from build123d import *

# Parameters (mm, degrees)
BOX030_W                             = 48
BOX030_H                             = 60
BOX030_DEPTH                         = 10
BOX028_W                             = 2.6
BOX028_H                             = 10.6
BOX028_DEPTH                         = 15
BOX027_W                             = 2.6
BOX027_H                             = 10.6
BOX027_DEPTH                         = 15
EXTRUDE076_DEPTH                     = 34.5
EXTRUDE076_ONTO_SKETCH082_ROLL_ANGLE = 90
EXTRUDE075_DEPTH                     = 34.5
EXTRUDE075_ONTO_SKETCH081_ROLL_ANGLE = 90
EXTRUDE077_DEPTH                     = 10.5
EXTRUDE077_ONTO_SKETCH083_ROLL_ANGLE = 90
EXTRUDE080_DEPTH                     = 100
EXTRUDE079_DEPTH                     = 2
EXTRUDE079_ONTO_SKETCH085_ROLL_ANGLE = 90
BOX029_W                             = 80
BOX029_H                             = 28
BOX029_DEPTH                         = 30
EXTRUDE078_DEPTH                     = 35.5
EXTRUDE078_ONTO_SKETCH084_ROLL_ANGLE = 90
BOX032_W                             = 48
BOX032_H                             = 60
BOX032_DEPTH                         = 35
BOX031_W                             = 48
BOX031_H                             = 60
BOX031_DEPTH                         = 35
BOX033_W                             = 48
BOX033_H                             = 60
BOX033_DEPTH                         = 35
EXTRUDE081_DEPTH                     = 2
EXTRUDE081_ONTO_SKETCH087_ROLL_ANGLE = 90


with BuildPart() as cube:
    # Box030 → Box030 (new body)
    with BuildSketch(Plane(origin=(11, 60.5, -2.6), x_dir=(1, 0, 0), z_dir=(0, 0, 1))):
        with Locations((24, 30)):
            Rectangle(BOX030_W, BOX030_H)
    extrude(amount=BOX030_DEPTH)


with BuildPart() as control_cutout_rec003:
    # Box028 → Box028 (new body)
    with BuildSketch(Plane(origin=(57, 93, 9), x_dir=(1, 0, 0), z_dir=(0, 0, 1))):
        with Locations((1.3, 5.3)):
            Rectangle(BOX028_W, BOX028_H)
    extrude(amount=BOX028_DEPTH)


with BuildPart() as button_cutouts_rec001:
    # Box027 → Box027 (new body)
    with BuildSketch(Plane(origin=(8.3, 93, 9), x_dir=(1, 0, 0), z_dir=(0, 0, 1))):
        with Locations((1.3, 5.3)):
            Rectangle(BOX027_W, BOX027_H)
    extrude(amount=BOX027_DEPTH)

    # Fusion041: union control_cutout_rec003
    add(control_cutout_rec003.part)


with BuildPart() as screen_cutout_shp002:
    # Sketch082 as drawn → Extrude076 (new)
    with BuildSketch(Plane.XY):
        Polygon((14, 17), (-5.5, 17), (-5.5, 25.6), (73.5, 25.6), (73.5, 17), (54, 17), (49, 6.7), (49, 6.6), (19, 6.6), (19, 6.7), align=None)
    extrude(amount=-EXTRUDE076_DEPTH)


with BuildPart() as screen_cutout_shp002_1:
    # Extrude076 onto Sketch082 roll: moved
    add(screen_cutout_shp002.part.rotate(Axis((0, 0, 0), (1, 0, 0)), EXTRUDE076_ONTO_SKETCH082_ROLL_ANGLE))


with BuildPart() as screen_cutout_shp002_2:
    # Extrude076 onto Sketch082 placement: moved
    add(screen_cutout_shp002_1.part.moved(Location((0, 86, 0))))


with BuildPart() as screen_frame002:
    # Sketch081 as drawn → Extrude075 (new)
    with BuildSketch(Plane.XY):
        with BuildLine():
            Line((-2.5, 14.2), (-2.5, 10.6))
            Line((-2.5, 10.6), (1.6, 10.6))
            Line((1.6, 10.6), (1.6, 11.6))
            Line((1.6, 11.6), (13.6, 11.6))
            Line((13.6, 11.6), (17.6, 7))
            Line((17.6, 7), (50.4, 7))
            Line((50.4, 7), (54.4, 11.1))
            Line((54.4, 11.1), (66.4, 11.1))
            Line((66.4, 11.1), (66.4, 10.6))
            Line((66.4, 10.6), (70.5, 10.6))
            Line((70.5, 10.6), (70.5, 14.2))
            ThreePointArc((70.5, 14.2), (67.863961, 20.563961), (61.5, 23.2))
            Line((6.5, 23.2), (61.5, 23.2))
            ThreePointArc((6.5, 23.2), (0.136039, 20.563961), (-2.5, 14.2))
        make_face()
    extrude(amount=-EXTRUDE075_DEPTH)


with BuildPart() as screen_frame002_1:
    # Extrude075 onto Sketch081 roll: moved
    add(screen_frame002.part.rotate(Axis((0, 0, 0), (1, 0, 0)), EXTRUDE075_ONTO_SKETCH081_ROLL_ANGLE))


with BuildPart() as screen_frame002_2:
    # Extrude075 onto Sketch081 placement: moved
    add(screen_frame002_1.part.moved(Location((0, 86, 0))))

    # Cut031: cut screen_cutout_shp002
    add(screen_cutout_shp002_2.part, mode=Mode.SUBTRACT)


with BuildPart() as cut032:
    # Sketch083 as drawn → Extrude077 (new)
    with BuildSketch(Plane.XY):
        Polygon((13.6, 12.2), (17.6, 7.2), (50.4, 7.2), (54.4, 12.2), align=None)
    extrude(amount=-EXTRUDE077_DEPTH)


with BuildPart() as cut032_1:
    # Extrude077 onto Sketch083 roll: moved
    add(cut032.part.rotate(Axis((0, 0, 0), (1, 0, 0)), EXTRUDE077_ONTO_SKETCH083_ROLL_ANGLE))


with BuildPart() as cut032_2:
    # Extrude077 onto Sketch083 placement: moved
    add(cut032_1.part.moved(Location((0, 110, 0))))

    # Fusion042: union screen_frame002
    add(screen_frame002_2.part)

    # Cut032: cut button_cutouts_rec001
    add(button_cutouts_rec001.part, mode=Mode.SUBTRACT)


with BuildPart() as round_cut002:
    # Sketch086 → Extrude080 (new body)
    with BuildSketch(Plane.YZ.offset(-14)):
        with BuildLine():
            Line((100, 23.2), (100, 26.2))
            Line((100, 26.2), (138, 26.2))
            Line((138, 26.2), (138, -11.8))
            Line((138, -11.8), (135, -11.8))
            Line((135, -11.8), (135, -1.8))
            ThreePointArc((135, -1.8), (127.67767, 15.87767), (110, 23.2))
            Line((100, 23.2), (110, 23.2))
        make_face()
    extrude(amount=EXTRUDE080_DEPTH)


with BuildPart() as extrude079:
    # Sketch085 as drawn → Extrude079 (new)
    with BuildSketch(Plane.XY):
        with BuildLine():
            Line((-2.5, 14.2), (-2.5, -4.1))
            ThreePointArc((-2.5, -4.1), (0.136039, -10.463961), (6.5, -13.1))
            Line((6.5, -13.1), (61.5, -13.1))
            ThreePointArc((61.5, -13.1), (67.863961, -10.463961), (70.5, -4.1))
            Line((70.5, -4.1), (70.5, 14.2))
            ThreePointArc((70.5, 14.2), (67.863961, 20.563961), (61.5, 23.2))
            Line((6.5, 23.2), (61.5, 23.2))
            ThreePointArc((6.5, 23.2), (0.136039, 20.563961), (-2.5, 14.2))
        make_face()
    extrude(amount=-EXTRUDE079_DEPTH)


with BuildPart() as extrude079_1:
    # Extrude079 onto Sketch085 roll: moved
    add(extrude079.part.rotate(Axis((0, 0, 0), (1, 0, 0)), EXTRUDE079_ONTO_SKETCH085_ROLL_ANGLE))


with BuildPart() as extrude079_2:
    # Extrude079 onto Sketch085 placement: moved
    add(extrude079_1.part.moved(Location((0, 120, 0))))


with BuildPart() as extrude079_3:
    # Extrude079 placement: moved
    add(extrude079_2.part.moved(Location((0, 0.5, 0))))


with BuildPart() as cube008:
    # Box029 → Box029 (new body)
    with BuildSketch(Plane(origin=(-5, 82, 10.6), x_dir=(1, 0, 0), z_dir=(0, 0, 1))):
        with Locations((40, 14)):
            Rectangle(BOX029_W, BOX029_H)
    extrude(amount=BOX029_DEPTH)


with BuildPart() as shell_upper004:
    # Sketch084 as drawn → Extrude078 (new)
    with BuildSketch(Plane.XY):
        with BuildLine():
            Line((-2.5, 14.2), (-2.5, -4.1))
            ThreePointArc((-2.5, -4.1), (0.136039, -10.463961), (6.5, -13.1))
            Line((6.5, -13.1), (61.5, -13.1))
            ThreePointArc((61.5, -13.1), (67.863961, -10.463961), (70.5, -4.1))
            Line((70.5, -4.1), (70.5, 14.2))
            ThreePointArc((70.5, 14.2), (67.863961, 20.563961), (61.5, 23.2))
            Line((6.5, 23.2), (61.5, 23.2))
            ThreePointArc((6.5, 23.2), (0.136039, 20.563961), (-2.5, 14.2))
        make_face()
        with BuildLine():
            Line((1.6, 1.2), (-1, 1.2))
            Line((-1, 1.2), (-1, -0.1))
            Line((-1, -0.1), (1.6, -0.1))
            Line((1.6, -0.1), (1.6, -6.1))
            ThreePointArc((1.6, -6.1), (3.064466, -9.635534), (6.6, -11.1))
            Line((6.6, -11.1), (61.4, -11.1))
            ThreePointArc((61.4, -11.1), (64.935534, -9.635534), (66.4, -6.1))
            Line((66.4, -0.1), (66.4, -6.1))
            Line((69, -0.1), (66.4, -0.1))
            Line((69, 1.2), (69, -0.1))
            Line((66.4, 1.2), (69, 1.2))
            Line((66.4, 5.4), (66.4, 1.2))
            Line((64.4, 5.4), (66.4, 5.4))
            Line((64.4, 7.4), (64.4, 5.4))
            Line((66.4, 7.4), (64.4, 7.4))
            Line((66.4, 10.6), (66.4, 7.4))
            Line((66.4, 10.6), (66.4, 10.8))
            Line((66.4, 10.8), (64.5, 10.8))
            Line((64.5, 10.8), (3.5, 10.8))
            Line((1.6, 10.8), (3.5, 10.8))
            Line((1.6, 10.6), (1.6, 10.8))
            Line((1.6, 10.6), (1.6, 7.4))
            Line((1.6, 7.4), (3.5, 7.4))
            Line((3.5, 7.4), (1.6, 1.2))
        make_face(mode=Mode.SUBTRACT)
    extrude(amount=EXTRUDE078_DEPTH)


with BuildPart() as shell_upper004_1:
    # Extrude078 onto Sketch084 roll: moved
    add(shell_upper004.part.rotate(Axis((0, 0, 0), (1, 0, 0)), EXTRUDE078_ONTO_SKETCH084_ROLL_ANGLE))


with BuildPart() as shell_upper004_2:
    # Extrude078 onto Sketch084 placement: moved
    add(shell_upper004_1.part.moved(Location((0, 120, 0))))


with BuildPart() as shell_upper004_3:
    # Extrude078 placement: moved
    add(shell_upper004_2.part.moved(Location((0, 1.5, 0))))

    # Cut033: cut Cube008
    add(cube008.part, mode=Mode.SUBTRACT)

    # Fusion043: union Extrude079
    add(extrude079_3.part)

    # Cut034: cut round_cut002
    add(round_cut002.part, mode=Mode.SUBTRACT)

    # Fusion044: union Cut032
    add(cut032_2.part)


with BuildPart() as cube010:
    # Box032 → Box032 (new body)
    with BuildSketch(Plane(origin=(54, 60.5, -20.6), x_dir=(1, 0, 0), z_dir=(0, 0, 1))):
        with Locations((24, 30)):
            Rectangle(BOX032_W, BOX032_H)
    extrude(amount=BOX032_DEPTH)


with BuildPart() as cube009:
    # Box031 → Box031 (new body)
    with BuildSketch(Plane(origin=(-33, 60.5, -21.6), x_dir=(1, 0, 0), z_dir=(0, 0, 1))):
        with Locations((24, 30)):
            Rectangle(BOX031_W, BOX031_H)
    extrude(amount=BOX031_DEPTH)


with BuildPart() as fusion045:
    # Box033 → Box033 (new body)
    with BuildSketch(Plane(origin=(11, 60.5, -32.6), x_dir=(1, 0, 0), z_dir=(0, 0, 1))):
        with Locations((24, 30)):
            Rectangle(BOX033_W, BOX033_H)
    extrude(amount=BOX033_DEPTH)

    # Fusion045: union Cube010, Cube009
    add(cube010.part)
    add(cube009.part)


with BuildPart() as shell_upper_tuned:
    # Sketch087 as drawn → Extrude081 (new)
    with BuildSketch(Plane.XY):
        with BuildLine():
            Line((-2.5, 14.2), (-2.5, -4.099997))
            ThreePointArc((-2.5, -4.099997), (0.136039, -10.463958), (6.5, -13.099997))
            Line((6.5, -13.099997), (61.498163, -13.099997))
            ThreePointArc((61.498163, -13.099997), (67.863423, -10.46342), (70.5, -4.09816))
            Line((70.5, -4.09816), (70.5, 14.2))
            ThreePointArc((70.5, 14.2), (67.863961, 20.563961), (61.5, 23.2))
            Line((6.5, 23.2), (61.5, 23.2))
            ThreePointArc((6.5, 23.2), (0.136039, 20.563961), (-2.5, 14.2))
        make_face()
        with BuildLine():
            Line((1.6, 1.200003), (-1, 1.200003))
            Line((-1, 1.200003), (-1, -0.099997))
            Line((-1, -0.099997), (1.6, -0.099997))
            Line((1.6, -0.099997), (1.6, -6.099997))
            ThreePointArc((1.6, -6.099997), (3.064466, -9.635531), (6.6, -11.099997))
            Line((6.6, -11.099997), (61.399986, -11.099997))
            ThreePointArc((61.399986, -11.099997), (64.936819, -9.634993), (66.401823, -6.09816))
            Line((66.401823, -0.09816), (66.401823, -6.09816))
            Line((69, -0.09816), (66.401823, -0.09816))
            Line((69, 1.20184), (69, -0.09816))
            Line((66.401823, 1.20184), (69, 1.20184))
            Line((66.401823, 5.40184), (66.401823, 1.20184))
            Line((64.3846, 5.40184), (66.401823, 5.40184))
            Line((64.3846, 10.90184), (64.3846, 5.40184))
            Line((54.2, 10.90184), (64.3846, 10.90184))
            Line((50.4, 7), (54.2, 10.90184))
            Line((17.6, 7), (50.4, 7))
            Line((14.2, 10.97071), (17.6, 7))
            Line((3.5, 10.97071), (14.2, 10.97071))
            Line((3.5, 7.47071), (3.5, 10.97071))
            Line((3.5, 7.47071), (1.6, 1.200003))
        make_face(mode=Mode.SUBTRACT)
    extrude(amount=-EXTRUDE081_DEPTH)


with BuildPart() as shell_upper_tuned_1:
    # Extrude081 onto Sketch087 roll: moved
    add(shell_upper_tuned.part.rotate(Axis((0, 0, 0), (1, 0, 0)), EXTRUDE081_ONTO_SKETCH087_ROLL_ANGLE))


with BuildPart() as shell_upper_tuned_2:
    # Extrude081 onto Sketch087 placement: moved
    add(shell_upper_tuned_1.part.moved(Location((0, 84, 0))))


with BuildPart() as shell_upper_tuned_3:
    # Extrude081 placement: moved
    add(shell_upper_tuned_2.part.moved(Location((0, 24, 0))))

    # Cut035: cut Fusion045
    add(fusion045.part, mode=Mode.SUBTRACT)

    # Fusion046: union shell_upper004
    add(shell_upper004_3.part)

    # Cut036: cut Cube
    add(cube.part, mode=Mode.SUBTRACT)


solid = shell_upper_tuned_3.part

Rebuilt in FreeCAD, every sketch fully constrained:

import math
import FreeCAD as App
import Part
import Sketcher
from FreeCAD import Vector
Q = App.Units.Quantity


def add_polygon(sketch, points):
    """Adds a closed chain of lines whose ends are joined by coincident constraints."""
    first, n = sketch.GeometryCount, len(points)
    for a, b in zip(points, points[1:] + points[:1]):
        sketch.addGeometry(Part.LineSegment(App.Vector(*a, 0), App.Vector(*b, 0)), False)
    for i in range(n):
        sketch.addConstraint(Sketcher.Constraint("Coincident", first + i, 2, first + (i + 1) % n, 1))

doc = App.newDocument("Part")
body = doc.addObject("PartDesign::Body", "Body")

sketch1 = body.newObject("Sketcher::SketchObject", "Sketch")
sketch1.AttachmentSupport = (doc.getObject("XY_Plane"), [""])
sketch1.MapMode = "FlatFace"
sketch1.AttachmentOffset = App.Placement(Vector(0, 0, -2.6), App.Rotation())
add_polygon(sketch1, [(11, 120.5), (11, 60.5), (59, 60.5), (59, 120.5)])
sketch1.addConstraint([
    Sketcher.Constraint("Vertical", 0),
    Sketcher.Constraint("Horizontal", 1),
    Sketcher.Constraint("Vertical", 2),
    Sketcher.Constraint("Horizontal", 3),
    Sketcher.Constraint("DistanceX", 1, 1, 1, 2, Q("48 mm")),
    Sketcher.Constraint("DistanceY", 0, 2, 0, 1, Q("60 mm")),
    Sketcher.Constraint("DistanceX", -1, 1, 0, 2, Q("11 mm")),
    Sketcher.Constraint("DistanceY", -1, 1, 0, 2, Q("60.5 mm")),
])
pad1 = body.newObject("PartDesign::Pad", "Pad")
pad1.Profile = sketch1
pad1.Length = 10
body2 = doc.addObject("PartDesign::Body", "Body001")

sketch2 = body2.newObject("Sketcher::SketchObject", "Sketch001")
sketch2.AttachmentSupport = (doc.getObject("XY_Plane001"), [""])
sketch2.MapMode = "FlatFace"
sketch2.AttachmentOffset = App.Placement(Vector(0, 0, 9), App.Rotation())
add_polygon(sketch2, [(57, 103.6), (57, 93), (59.6, 93), (59.6, 103.6)])
sketch2.addConstraint([
    Sketcher.Constraint("Vertical", 0),
    Sketcher.Constraint("Horizontal", 1),
    Sketcher.Constraint("Vertical", 2),
    Sketcher.Constraint("Horizontal", 3),
    Sketcher.Constraint("DistanceX", 1, 1, 1, 2, Q("2.6 mm")),
    Sketcher.Constraint("DistanceY", 0, 2, 0, 1, Q("10.6 mm")),
    Sketcher.Constraint("DistanceX", -1, 1, 0, 2, Q("57 mm")),
    Sketcher.Constraint("DistanceY", -1, 1, 0, 2, Q("93 mm")),
])
pad2 = body2.newObject("PartDesign::Pad", "Pad001")
pad2.Profile = sketch2
pad2.Length = 15
body3 = doc.addObject("PartDesign::Body", "Body002")
body3.AllowCompound = True

sketch3 = body3.newObject("Sketcher::SketchObject", "Sketch002")
sketch3.AttachmentSupport = (doc.getObject("XY_Plane002"), [""])
sketch3.MapMode = "FlatFace"
sketch3.AttachmentOffset = App.Placement(Vector(0, 0, 9), App.Rotation())
add_polygon(sketch3, [(8.3, 103.6), (8.3, 93), (10.9, 93), (10.9, 103.6)])
sketch3.addConstraint([
    Sketcher.Constraint("Vertical", 0),
    Sketcher.Constraint("Horizontal", 1),
    Sketcher.Constraint("Vertical", 2),
    Sketcher.Constraint("Horizontal", 3),
    Sketcher.Constraint("DistanceX", 1, 1, 1, 2, Q("2.6 mm")),
    Sketcher.Constraint("DistanceY", 0, 2, 0, 1, Q("10.6 mm")),
    Sketcher.Constraint("DistanceY", -1, 1, 0, 2, Q("93 mm")),
    Sketcher.Constraint("DistanceX", -1, 1, 0, 2, Q("8.3 mm")),
])
pad3 = body3.newObject("PartDesign::Pad", "Pad002")
pad3.Profile = sketch3
pad3.Length = 15
doc.recompute()

boolean = body3.newObject("PartDesign::Boolean", "Boolean")
boolean.Type = "Fuse"
boolean.addObjects([body2])
body4 = doc.addObject("PartDesign::Body", "Body003")

sketch4 = body4.newObject("Sketcher::SketchObject", "Sketch003")
sketch4.AttachmentSupport = (doc.getObject("XY_Plane003"), [""])
sketch4.MapMode = "FlatFace"
add_polygon(sketch4, [(-5.5, 17), (14, 17), (19, 6.7), (19, 6.6), (49, 6.6), (49, 6.7), (54, 17), (73.5, 17), (73.5, 25.6), (-5.5, 25.6)])
sketch4.addConstraint([
    Sketcher.Constraint("Horizontal", 0),
    Sketcher.Constraint("Vertical", 2),
    Sketcher.Constraint("Horizontal", 3),
    Sketcher.Constraint("Vertical", 4),
    Sketcher.Constraint("Horizontal", 6),
    Sketcher.Constraint("Vertical", 7),
    Sketcher.Constraint("Horizontal", 8),
    Sketcher.Constraint("Vertical", 9),
    Sketcher.Constraint("Horizontal", 1, 2, 4, 2),
    Sketcher.Constraint("Horizontal", 0, 2, 5, 2),
    Sketcher.Constraint("Equal", 0, 6),
    Sketcher.Constraint("Equal", 1, 5),
    Sketcher.Constraint("DistanceX", 3, 1, 3, 2, Q("30 mm")),
    Sketcher.Constraint("DistanceX", 8, 2, 8, 1, Q("79 mm")),
    Sketcher.Constraint("DistanceX", 0, 1, 0, 2, Q("19.5 mm")),
    Sketcher.Constraint("DistanceY", 2, 2, 2, 1, Q("0.1 mm")),
    Sketcher.Constraint("DistanceY", 7, 1, 7, 2, Q("8.6 mm")),
    Sketcher.Constraint("DistanceX", -1, 1, 0, 2, Q("14 mm")),
    Sketcher.Constraint("DistanceY", -1, 1, 0, 2, Q("17 mm")),
    Sketcher.Constraint("DistanceY", 3, 2, 7, 2, Q("19 mm")),
])
pad4 = body4.newObject("PartDesign::Pad", "Pad003")
pad4.Profile = sketch4
pad4.Length = 34.5
pad4.Reversed = True
body5 = doc.addObject("PartDesign::Body", "Body004")
doc.recompute()

body4.Placement = App.Placement(Vector(0, 0, 0), App.Rotation(Vector(1, 0, 0), 90))
boolean2 = body5.newObject("PartDesign::Boolean", "Boolean001")
boolean2.Type = "Fuse"
boolean2.addObjects([body4])
body6 = doc.addObject("PartDesign::Body", "Body005")
doc.recompute()

body5.Placement = App.Placement(Vector(0, 86, 0), App.Rotation(Vector(0, 0, 1), 0))
boolean3 = body6.newObject("PartDesign::Boolean", "Boolean002")
boolean3.Type = "Fuse"
boolean3.addObjects([body5])
body7 = doc.addObject("PartDesign::Body", "Body006")

sketch5 = body7.newObject("Sketcher::SketchObject", "Sketch004")
sketch5.AttachmentSupport = (doc.getObject("XY_Plane006"), [""])
sketch5.MapMode = "FlatFace"
sketch5.addGeometry([
    Part.LineSegment(Vector(-2.5, 14.2, 0), Vector(-2.5, 10.6, 0)),
    Part.LineSegment(Vector(-2.5, 10.6, 0), Vector(1.6, 10.6, 0)),
    Part.LineSegment(Vector(1.6, 10.6, 0), Vector(1.6, 11.6, 0)),
    Part.LineSegment(Vector(1.6, 11.6, 0), Vector(13.6, 11.6, 0)),
    Part.LineSegment(Vector(13.6, 11.6, 0), Vector(17.6, 7, 0)),
    Part.LineSegment(Vector(17.6, 7, 0), Vector(50.4, 7, 0)),
    Part.LineSegment(Vector(50.4, 7, 0), Vector(54.4, 11.1, 0)),
    Part.LineSegment(Vector(54.4, 11.1, 0), Vector(66.4, 11.1, 0)),
    Part.LineSegment(Vector(66.4, 11.1, 0), Vector(66.4, 10.6, 0)),
    Part.LineSegment(Vector(66.4, 10.6, 0), Vector(70.5, 10.6, 0)),
    Part.LineSegment(Vector(70.5, 10.6, 0), Vector(70.5, 14.2, 0)),
    Part.ArcOfCircle(Part.Circle(Vector(61.5, 14.2, 0), Vector(0, 0, 1), 9), math.radians(0.000001), math.radians(89.999999)),
    Part.LineSegment(Vector(61.5, 23.2, 0), Vector(6.5, 23.2, 0)),
    Part.ArcOfCircle(Part.Circle(Vector(6.5, 14.2, 0), Vector(0, 0, 1), 9), math.radians(90.000001), math.radians(179.999999)),
], False)
sketch5.addConstraint([
    Sketcher.Constraint("Coincident", 0, 2, 1, 1),
    Sketcher.Constraint("Coincident", 1, 2, 2, 1),
    Sketcher.Constraint("Coincident", 2, 2, 3, 1),
    Sketcher.Constraint("Coincident", 3, 2, 4, 1),
    Sketcher.Constraint("Coincident", 4, 2, 5, 1),
    Sketcher.Constraint("Coincident", 5, 2, 6, 1),
    Sketcher.Constraint("Coincident", 6, 2, 7, 1),
    Sketcher.Constraint("Coincident", 7, 2, 8, 1),
    Sketcher.Constraint("Coincident", 8, 2, 9, 1),
    Sketcher.Constraint("Coincident", 9, 2, 10, 1),
    Sketcher.Constraint("Tangent", 10, 2, 11, 1),
    Sketcher.Constraint("Tangent", 11, 2, 12, 1),
    Sketcher.Constraint("Tangent", 12, 2, 13, 1),
    Sketcher.Constraint("Tangent", 13, 2, 0, 1),
    Sketcher.Constraint("Vertical", 0),
    Sketcher.Constraint("Horizontal", 1),
    Sketcher.Constraint("Vertical", 2),
    Sketcher.Constraint("Horizontal", 3),
    Sketcher.Constraint("Horizontal", 5),
    Sketcher.Constraint("Horizontal", 7),
    Sketcher.Constraint("Vertical", 8),
    Sketcher.Constraint("Horizontal", 9),
    Sketcher.Constraint("Vertical", 10),
    Sketcher.Constraint("Horizontal", 12),
    Sketcher.Constraint("Equal", 11, 13),
    Sketcher.Constraint("Horizontal", 1, 2, 8, 2),
    Sketcher.Constraint("Equal", 3, 7),
    Sketcher.Constraint("Equal", 1, 9),
    Sketcher.Constraint("Radius", 11, Q("9 mm")),
    Sketcher.Constraint("DistanceX", 3, 1, 3, 2, Q("12 mm")),
    Sketcher.Constraint("DistanceX", 12, 2, 12, 1, Q("55 mm")),
    Sketcher.Constraint("DistanceY", 2, 1, 2, 2, Q("1 mm")),
    Sketcher.Constraint("DistanceX", 1, 1, 1, 2, Q("4.1 mm")),
    Sketcher.Constraint("DistanceX", 5, 1, 5, 2, Q("32.8 mm")),
    Sketcher.Constraint("DistanceY", 0, 2, 0, 1, Q("3.6 mm")),
    Sketcher.Constraint("DistanceY", 8, 2, 8, 1, Q("0.5 mm")),
    Sketcher.Constraint("DistanceY", -1, 1, 4, 2, Q("7 mm")),
    Sketcher.Constraint("DistanceX", 3, 2, 4, 2, Q("4 mm")),
    Sketcher.Constraint("DistanceX", -1, 1, 11, 3, Q("61.5 mm")),
    Sketcher.Constraint("DistanceY", -1, 1, 11, 3, Q("14.2 mm")),
])
pad5 = body7.newObject("PartDesign::Pad", "Pad004")
pad5.Profile = sketch5
pad5.Length = 34.5
pad5.Reversed = True
body8 = doc.addObject("PartDesign::Body", "Body007")
doc.recompute()

body7.Placement = App.Placement(Vector(0, 0, 0), App.Rotation(Vector(1, 0, 0), 90))
boolean4 = body8.newObject("PartDesign::Boolean", "Boolean003")
boolean4.Type = "Fuse"
boolean4.addObjects([body7])
body9 = doc.addObject("PartDesign::Body", "Body008")
body9.AllowCompound = True
doc.recompute()

body8.Placement = App.Placement(Vector(0, 86, 0), App.Rotation(Vector(0, 0, 1), 0))
boolean5 = body9.newObject("PartDesign::Boolean", "Boolean004")
boolean5.Type = "Fuse"
boolean5.addObjects([body8])
doc.recompute()

boolean6 = body9.newObject("PartDesign::Boolean", "Boolean005")
boolean6.Type = "Cut"
boolean6.addObjects([body6])
body10 = doc.addObject("PartDesign::Body", "Body009")

sketch6 = body10.newObject("Sketcher::SketchObject", "Sketch005")
sketch6.AttachmentSupport = (doc.getObject("XY_Plane009"), [""])
sketch6.MapMode = "FlatFace"
add_polygon(sketch6, [(13.6, 12.2), (17.6, 7.2), (50.4, 7.2), (54.4, 12.2)])
sketch6.addConstraint([
    Sketcher.Constraint("Horizontal", 1),
    Sketcher.Constraint("Horizontal", 3),
    Sketcher.Constraint("Equal", 0, 2),
    Sketcher.Constraint("DistanceX", 1, 1, 1, 2, Q("32.8 mm")),
    Sketcher.Constraint("DistanceX", 3, 2, 3, 1, Q("40.8 mm")),
    Sketcher.Constraint("DistanceY", 1, 2, 2, 2, Q("5 mm")),
    Sketcher.Constraint("DistanceX", -1, 1, 0, 2, Q("17.6 mm")),
    Sketcher.Constraint("DistanceY", -1, 1, 0, 2, Q("7.2 mm")),
])
pad6 = body10.newObject("PartDesign::Pad", "Pad005")
pad6.Profile = sketch6
pad6.Length = 10.5
pad6.Reversed = True
body11 = doc.addObject("PartDesign::Body", "Body010")
doc.recompute()

body10.Placement = App.Placement(Vector(0, 0, 0), App.Rotation(Vector(1, 0, 0), 90))
boolean7 = body11.newObject("PartDesign::Boolean", "Boolean006")
boolean7.Type = "Fuse"
boolean7.addObjects([body10])
body12 = doc.addObject("PartDesign::Body", "Body011")
doc.recompute()

body11.Placement = App.Placement(Vector(0, 110, 0), App.Rotation(Vector(0, 0, 1), 0))
boolean8 = body12.newObject("PartDesign::Boolean", "Boolean007")
boolean8.Type = "Fuse"
boolean8.addObjects([body11])
doc.recompute()

boolean9 = body12.newObject("PartDesign::Boolean", "Boolean008")
boolean9.Type = "Fuse"
boolean9.addObjects([body9])
doc.recompute()

boolean10 = body12.newObject("PartDesign::Boolean", "Boolean009")
boolean10.Type = "Cut"
boolean10.addObjects([body3])
body13 = doc.addObject("PartDesign::Body", "Body012")

sketch7 = body13.newObject("Sketcher::SketchObject", "Sketch006")
sketch7.AttachmentSupport = (doc.getObject("YZ_Plane012"), [""])
sketch7.MapMode = "FlatFace"
sketch7.AttachmentOffset = App.Placement(Vector(0, 0, -14), App.Rotation())
sketch7.addGeometry([
    Part.LineSegment(Vector(100, 26.2, 0), Vector(100, 23.2, 0)),
    Part.LineSegment(Vector(100, 23.2, 0), Vector(110, 23.2, 0)),
    Part.ArcOfCircle(Part.Circle(Vector(110.000002, -1.799998, 0), Vector(0, 0, 1), 24.999998), math.radians(-0.000004), math.radians(90.000004)),
    Part.LineSegment(Vector(135, -1.8, 0), Vector(135, -11.8, 0)),
    Part.LineSegment(Vector(135, -11.8, 0), Vector(138, -11.8, 0)),
    Part.LineSegment(Vector(138, -11.8, 0), Vector(138, 26.2, 0)),
    Part.LineSegment(Vector(138, 26.2, 0), Vector(100, 26.2, 0)),
], False)
sketch7.addConstraint([
    Sketcher.Constraint("Coincident", 0, 2, 1, 1),
    Sketcher.Constraint("Tangent", 1, 2, 2, 2),
    Sketcher.Constraint("Tangent", 2, 1, 3, 1),
    Sketcher.Constraint("Coincident", 3, 2, 4, 1),
    Sketcher.Constraint("Coincident", 4, 2, 5, 1),
    Sketcher.Constraint("Coincident", 5, 2, 6, 1),
    Sketcher.Constraint("Coincident", 6, 2, 0, 1),
    Sketcher.Constraint("Vertical", 0),
    Sketcher.Constraint("Horizontal", 1),
    Sketcher.Constraint("Vertical", 3),
    Sketcher.Constraint("Horizontal", 4),
    Sketcher.Constraint("Vertical", 5),
    Sketcher.Constraint("Horizontal", 6),
    Sketcher.Constraint("Equal", 4, 0),
    Sketcher.Constraint("Equal", 1, 3),
    Sketcher.Constraint("Radius", 2, Q("24.999998 mm")),
    Sketcher.Constraint("DistanceX", 1, 1, 1, 2, Q("10 mm")),
    Sketcher.Constraint("DistanceX", 4, 1, 4, 2, Q("3 mm")),
    Sketcher.Constraint("DistanceX", -1, 1, 2, 3, Q("110.000002 mm")),
    Sketcher.Constraint("DistanceY", 2, 3, -1, 1, Q("1.799998 mm")),
])
pad7 = body13.newObject("PartDesign::Pad", "Pad006")
pad7.Profile = sketch7
pad7.Length = 100
body14 = doc.addObject("PartDesign::Body", "Body013")

sketch8 = body14.newObject("Sketcher::SketchObject", "Sketch007")
sketch8.AttachmentSupport = (doc.getObject("XY_Plane013"), [""])
sketch8.MapMode = "FlatFace"
sketch8.addGeometry([
    Part.LineSegment(Vector(-2.5, 14.2, 0), Vector(-2.5, -4.1, 0)),
    Part.ArcOfCircle(Part.Circle(Vector(6.5, -4.1, 0), Vector(0, 0, 1), 9), math.radians(-179.999999), math.radians(-90.000001)),
    Part.LineSegment(Vector(6.5, -13.1, 0), Vector(61.5, -13.1, 0)),
    Part.ArcOfCircle(Part.Circle(Vector(61.5, -4.1, 0), Vector(0, 0, 1), 9), math.radians(-89.999999), math.radians(-0.000001)),
    Part.LineSegment(Vector(70.5, -4.1, 0), Vector(70.5, 14.2, 0)),
    Part.ArcOfCircle(Part.Circle(Vector(61.5, 14.2, 0), Vector(0, 0, 1), 9), math.radians(0.000001), math.radians(89.999999)),
    Part.LineSegment(Vector(61.5, 23.2, 0), Vector(6.5, 23.2, 0)),
    Part.ArcOfCircle(Part.Circle(Vector(6.5, 14.2, 0), Vector(0, 0, 1), 9), math.radians(90.000001), math.radians(179.999999)),
], False)
sketch8.addConstraint([
    Sketcher.Constraint("Tangent", 0, 2, 1, 1),
    Sketcher.Constraint("Tangent", 1, 2, 2, 1),
    Sketcher.Constraint("Tangent", 2, 2, 3, 1),
    Sketcher.Constraint("Tangent", 3, 2, 4, 1),
    Sketcher.Constraint("Tangent", 4, 2, 5, 1),
    Sketcher.Constraint("Tangent", 5, 2, 6, 1),
    Sketcher.Constraint("Tangent", 6, 2, 7, 1),
    Sketcher.Constraint("Tangent", 7, 2, 0, 1),
    Sketcher.Constraint("Vertical", 0),
    Sketcher.Constraint("Horizontal", 2),
    Sketcher.Constraint("Vertical", 4),
    Sketcher.Constraint("Horizontal", 6),
    Sketcher.Constraint("Equal", 1, 3),
    Sketcher.Constraint("Equal", 3, 5),
    Sketcher.Constraint("Equal", 5, 7),
    Sketcher.Constraint("Radius", 1, Q("9 mm")),
    Sketcher.Constraint("DistanceX", 2, 1, 2, 2, Q("55 mm")),
    Sketcher.Constraint("DistanceY", 0, 2, 0, 1, Q("18.3 mm")),
    Sketcher.Constraint("DistanceX", -1, 1, 1, 3, Q("6.5 mm")),
    Sketcher.Constraint("DistanceY", 1, 3, -1, 1, Q("4.1 mm")),
])
pad8 = body14.newObject("PartDesign::Pad", "Pad007")
pad8.Profile = sketch8
pad8.Length = 2
pad8.Reversed = True
body15 = doc.addObject("PartDesign::Body", "Body014")
doc.recompute()

body14.Placement = App.Placement(Vector(0, 0, 0), App.Rotation(Vector(1, 0, 0), 90))
boolean11 = body15.newObject("PartDesign::Boolean", "Boolean010")
boolean11.Type = "Fuse"
boolean11.addObjects([body14])
body16 = doc.addObject("PartDesign::Body", "Body015")
doc.recompute()

body15.Placement = App.Placement(Vector(0, 120, 0), App.Rotation(Vector(0, 0, 1), 0))
boolean12 = body16.newObject("PartDesign::Boolean", "Boolean011")
boolean12.Type = "Fuse"
boolean12.addObjects([body15])
body17 = doc.addObject("PartDesign::Body", "Body016")
doc.recompute()

body16.Placement = App.Placement(Vector(0, 0.5, 0), App.Rotation(Vector(0, 0, 1), 0))
boolean13 = body17.newObject("PartDesign::Boolean", "Boolean012")
boolean13.Type = "Fuse"
boolean13.addObjects([body16])
body18 = doc.addObject("PartDesign::Body", "Body017")

sketch9 = body18.newObject("Sketcher::SketchObject", "Sketch008")
sketch9.AttachmentSupport = (doc.getObject("XY_Plane017"), [""])
sketch9.MapMode = "FlatFace"
sketch9.AttachmentOffset = App.Placement(Vector(0, 0, 10.6), App.Rotation())
add_polygon(sketch9, [(-5, 110), (-5, 82), (75, 82), (75, 110)])
sketch9.addConstraint([
    Sketcher.Constraint("Vertical", 0),
    Sketcher.Constraint("Horizontal", 1),
    Sketcher.Constraint("Vertical", 2),
    Sketcher.Constraint("Horizontal", 3),
    Sketcher.Constraint("DistanceX", 1, 1, 1, 2, Q("80 mm")),
    Sketcher.Constraint("DistanceY", 0, 2, 0, 1, Q("28 mm")),
    Sketcher.Constraint("DistanceX", 0, 2, -1, 1, Q("5 mm")),
    Sketcher.Constraint("DistanceY", -1, 1, 0, 2, Q("82 mm")),
])
pad9 = body18.newObject("PartDesign::Pad", "Pad008")
pad9.Profile = sketch9
pad9.Length = 30
body19 = doc.addObject("PartDesign::Body", "Body018")

sketch10 = body19.newObject("Sketcher::SketchObject", "Sketch009")
sketch10.AttachmentSupport = (doc.getObject("XY_Plane018"), [""])
sketch10.MapMode = "FlatFace"
sketch10.addGeometry([
    Part.LineSegment(Vector(-2.5, 14.2, 0), Vector(-2.5, -4.1, 0)),
    Part.ArcOfCircle(Part.Circle(Vector(6.5, -4.1, 0), Vector(0, 0, 1), 9), math.radians(-179.999999), math.radians(-90.000001)),
    Part.LineSegment(Vector(6.5, -13.1, 0), Vector(61.5, -13.1, 0)),
    Part.ArcOfCircle(Part.Circle(Vector(61.5, -4.1, 0), Vector(0, 0, 1), 9), math.radians(-89.999999), math.radians(-0.000001)),
    Part.LineSegment(Vector(70.5, -4.1, 0), Vector(70.5, 14.2, 0)),
    Part.ArcOfCircle(Part.Circle(Vector(61.5, 14.2, 0), Vector(0, 0, 1), 9), math.radians(0.000001), math.radians(89.999999)),
    Part.LineSegment(Vector(61.5, 23.2, 0), Vector(6.5, 23.2, 0)),
    Part.ArcOfCircle(Part.Circle(Vector(6.5, 14.2, 0), Vector(0, 0, 1), 9), math.radians(90.000001), math.radians(179.999999)),
    Part.LineSegment(Vector(-1, 1.2, 0), Vector(1.6, 1.2, 0)),
    Part.LineSegment(Vector(1.6, 1.2, 0), Vector(3.5, 7.4, 0)),
    Part.LineSegment(Vector(3.5, 7.4, 0), Vector(1.6, 7.4, 0)),
    Part.LineSegment(Vector(1.6, 7.4, 0), Vector(1.6, 10.8, 0)),
    Part.LineSegment(Vector(1.6, 10.8, 0), Vector(66.4, 10.8, 0)),
    Part.LineSegment(Vector(66.4, 10.8, 0), Vector(66.4, 7.4, 0)),
    Part.LineSegment(Vector(66.4, 7.4, 0), Vector(64.4, 7.4, 0)),
    Part.LineSegment(Vector(64.4, 7.4, 0), Vector(64.4, 5.4, 0)),
    Part.LineSegment(Vector(64.4, 5.4, 0), Vector(66.4, 5.4, 0)),
    Part.LineSegment(Vector(66.4, 5.4, 0), Vector(66.4, 1.2, 0)),
    Part.LineSegment(Vector(66.4, 1.2, 0), Vector(69, 1.2, 0)),
    Part.LineSegment(Vector(69, 1.2, 0), Vector(69, -0.1, 0)),
    Part.LineSegment(Vector(69, -0.1, 0), Vector(66.4, -0.1, 0)),
    Part.LineSegment(Vector(66.4, -0.1, 0), Vector(66.4, -6.1, 0)),
    Part.ArcOfCircle(Part.Circle(Vector(61.4, -6.1, 0), Vector(0, 0, 1), 5), math.radians(-90.000004), math.radians(0.000004)),
    Part.LineSegment(Vector(61.4, -11.1, 0), Vector(6.6, -11.1, 0)),
    Part.ArcOfCircle(Part.Circle(Vector(6.6, -6.1, 0), Vector(0, 0, 1), 5), math.radians(179.999996), math.radians(270.000004)),
    Part.LineSegment(Vector(1.6, -6.1, 0), Vector(1.6, -0.1, 0)),
    Part.LineSegment(Vector(1.6, -0.1, 0), Vector(-1, -0.1, 0)),
    Part.LineSegment(Vector(-1, -0.1, 0), Vector(-1, 1.2, 0)),
], False)
sketch10.addConstraint([
    Sketcher.Constraint("Tangent", 0, 2, 1, 1),
    Sketcher.Constraint("Tangent", 1, 2, 2, 1),
    Sketcher.Constraint("Tangent", 2, 2, 3, 1),
    Sketcher.Constraint("Tangent", 3, 2, 4, 1),
    Sketcher.Constraint("Tangent", 4, 2, 5, 1),
    Sketcher.Constraint("Tangent", 5, 2, 6, 1),
    Sketcher.Constraint("Tangent", 6, 2, 7, 1),
    Sketcher.Constraint("Tangent", 7, 2, 0, 1),
    Sketcher.Constraint("Coincident", 8, 2, 9, 1),
    Sketcher.Constraint("Coincident", 9, 2, 10, 1),
    Sketcher.Constraint("Coincident", 10, 2, 11, 1),
    Sketcher.Constraint("Coincident", 11, 2, 12, 1),
    Sketcher.Constraint("Coincident", 12, 2, 13, 1),
    Sketcher.Constraint("Coincident", 13, 2, 14, 1),
    Sketcher.Constraint("Coincident", 14, 2, 15, 1),
    Sketcher.Constraint("Coincident", 15, 2, 16, 1),
    Sketcher.Constraint("Coincident", 16, 2, 17, 1),
    Sketcher.Constraint("Coincident", 17, 2, 18, 1),
    Sketcher.Constraint("Coincident", 18, 2, 19, 1),
    Sketcher.Constraint("Coincident", 19, 2, 20, 1),
    Sketcher.Constraint("Coincident", 20, 2, 21, 1),
    Sketcher.Constraint("Tangent", 21, 2, 22, 2),
    Sketcher.Constraint("Tangent", 22, 1, 23, 1),
    Sketcher.Constraint("Tangent", 23, 2, 24, 2),
    Sketcher.Constraint("Tangent", 24, 1, 25, 1),
    Sketcher.Constraint("Coincident", 25, 2, 26, 1),
    Sketcher.Constraint("Coincident", 26, 2, 27, 1),
    Sketcher.Constraint("Coincident", 27, 2, 8, 1),
    Sketcher.Constraint("Vertical", 0),
    Sketcher.Constraint("Horizontal", 2),
    Sketcher.Constraint("Vertical", 4),
    Sketcher.Constraint("Horizontal", 6),
    Sketcher.Constraint("Horizontal", 8),
    Sketcher.Constraint("Horizontal", 10),
    Sketcher.Constraint("Vertical", 11),
    Sketcher.Constraint("Horizontal", 12),
    Sketcher.Constraint("Vertical", 13),
    Sketcher.Constraint("Horizontal", 14),
    Sketcher.Constraint("Vertical", 15),
    Sketcher.Constraint("Horizontal", 16),
    Sketcher.Constraint("Vertical", 17),
    Sketcher.Constraint("Horizontal", 18),
    Sketcher.Constraint("Vertical", 19),
    Sketcher.Constraint("Horizontal", 20),
    Sketcher.Constraint("Vertical", 21),
    Sketcher.Constraint("Horizontal", 23),
    Sketcher.Constraint("Vertical", 25),
    Sketcher.Constraint("Horizontal", 26),
    Sketcher.Constraint("Vertical", 27),
    Sketcher.Constraint("Equal", 1, 3),
    Sketcher.Constraint("Equal", 3, 5),
    Sketcher.Constraint("Equal", 5, 7),
    Sketcher.Constraint("Equal", 22, 24),
    Sketcher.Constraint("Horizontal", 10, 2, 13, 2),
    Sketcher.Constraint("Horizontal", 8, 2, 17, 2),
    Sketcher.Constraint("Horizontal", 20, 2, 25, 2),
    Sketcher.Constraint("Vertical", 8, 2, 10, 2),
    Sketcher.Constraint("Vertical", 13, 2, 16, 2),
    Sketcher.Constraint("Vertical", 17, 2, 20, 2),
    Sketcher.Constraint("Vertical", 11, 2, 24, 1),
    Sketcher.Constraint("Equal", 8, 18),
    Sketcher.Constraint("Equal", 16, 15),
    Sketcher.Constraint("Radius", 1, Q("9 mm")),
    Sketcher.Constraint("Radius", 22, Q("5 mm")),
    Sketcher.Constraint("DistanceX", 2, 1, 2, 2, Q("55 mm")),
    Sketcher.Constraint("DistanceX", 14, 2, 14, 1, Q("2 mm")),
    Sketcher.Constraint("DistanceY", 21, 2, 21, 1, Q("6 mm")),
    Sketcher.Constraint("DistanceX", 8, 1, 8, 2, Q("2.6 mm")),
    Sketcher.Constraint("DistanceX", 10, 2, 10, 1, Q("1.9 mm")),
    Sketcher.Constraint("DistanceX", 12, 1, 12, 2, Q("64.8 mm")),
    Sketcher.Constraint("DistanceY", 0, 2, 0, 1, Q("18.3 mm")),
    Sketcher.Constraint("DistanceY", 11, 1, 11, 2, Q("3.4 mm")),
    Sketcher.Constraint("DistanceY", 17, 2, 17, 1, Q("4.2 mm")),
    Sketcher.Constraint("DistanceY", 19, 2, 19, 1, Q("1.3 mm")),
    Sketcher.Constraint("DistanceX", -1, 1, 18, 2, Q("69 mm")),
    Sketcher.Constraint("DistanceY", 22, 3, 3, 3, Q("2 mm")),
    Sketcher.Constraint("DistanceX", 9, 2, 7, 3, Q("3 mm")),
    Sketcher.Constraint("DistanceY", 1, 3, -1, 1, Q("4.1 mm")),
])
pad10 = body19.newObject("PartDesign::Pad", "Pad009")
pad10.Profile = sketch10
pad10.Length = 35.5
body20 = doc.addObject("PartDesign::Body", "Body019")
doc.recompute()

body19.Placement = App.Placement(Vector(0, 0, 0), App.Rotation(Vector(1, 0, 0), 90))
boolean14 = body20.newObject("PartDesign::Boolean", "Boolean013")
boolean14.Type = "Fuse"
boolean14.addObjects([body19])
body21 = doc.addObject("PartDesign::Body", "Body020")
doc.recompute()

body20.Placement = App.Placement(Vector(0, 120, 0), App.Rotation(Vector(0, 0, 1), 0))
boolean15 = body21.newObject("PartDesign::Boolean", "Boolean014")
boolean15.Type = "Fuse"
boolean15.addObjects([body20])
body22 = doc.addObject("PartDesign::Body", "Body021")
doc.recompute()

body21.Placement = App.Placement(Vector(0, 1.5, 0), App.Rotation(Vector(0, 0, 1), 0))
boolean16 = body22.newObject("PartDesign::Boolean", "Boolean015")
boolean16.Type = "Fuse"
boolean16.addObjects([body21])
doc.recompute()

boolean17 = body22.newObject("PartDesign::Boolean", "Boolean016")
boolean17.Type = "Cut"
boolean17.addObjects([body18])
doc.recompute()

boolean18 = body22.newObject("PartDesign::Boolean", "Boolean017")
boolean18.Type = "Fuse"
boolean18.addObjects([body17])
doc.recompute()

boolean19 = body22.newObject("PartDesign::Boolean", "Boolean018")
boolean19.Type = "Cut"
boolean19.addObjects([body13])
doc.recompute()

boolean20 = body22.newObject("PartDesign::Boolean", "Boolean019")
boolean20.Type = "Fuse"
boolean20.addObjects([body12])
body23 = doc.addObject("PartDesign::Body", "Body022")

sketch11 = body23.newObject("Sketcher::SketchObject", "Sketch010")
sketch11.AttachmentSupport = (doc.getObject("XY_Plane022"), [""])
sketch11.MapMode = "FlatFace"
sketch11.AttachmentOffset = App.Placement(Vector(0, 0, -20.6), App.Rotation())
add_polygon(sketch11, [(54, 120.5), (54, 60.5), (102, 60.5), (102, 120.5)])
sketch11.addConstraint([
    Sketcher.Constraint("Vertical", 0),
    Sketcher.Constraint("Horizontal", 1),
    Sketcher.Constraint("Vertical", 2),
    Sketcher.Constraint("Horizontal", 3),
    Sketcher.Constraint("DistanceX", 1, 1, 1, 2, Q("48 mm")),
    Sketcher.Constraint("DistanceY", 0, 2, 0, 1, Q("60 mm")),
    Sketcher.Constraint("DistanceX", -1, 1, 0, 2, Q("54 mm")),
    Sketcher.Constraint("DistanceY", -1, 1, 0, 2, Q("60.5 mm")),
])
pad11 = body23.newObject("PartDesign::Pad", "Pad010")
pad11.Profile = sketch11
pad11.Length = 35
body24 = doc.addObject("PartDesign::Body", "Body023")

sketch12 = body24.newObject("Sketcher::SketchObject", "Sketch011")
sketch12.AttachmentSupport = (doc.getObject("XY_Plane023"), [""])
sketch12.MapMode = "FlatFace"
sketch12.AttachmentOffset = App.Placement(Vector(0, 0, -21.6), App.Rotation())
add_polygon(sketch12, [(-33, 120.5), (-33, 60.5), (15, 60.5), (15, 120.5)])
sketch12.addConstraint([
    Sketcher.Constraint("Vertical", 0),
    Sketcher.Constraint("Horizontal", 1),
    Sketcher.Constraint("Vertical", 2),
    Sketcher.Constraint("Horizontal", 3),
    Sketcher.Constraint("DistanceX", 1, 1, 1, 2, Q("48 mm")),
    Sketcher.Constraint("DistanceY", 0, 2, 0, 1, Q("60 mm")),
    Sketcher.Constraint("DistanceX", 0, 2, -1, 1, Q("33 mm")),
    Sketcher.Constraint("DistanceY", -1, 1, 0, 2, Q("60.5 mm")),
])
pad12 = body24.newObject("PartDesign::Pad", "Pad011")
pad12.Profile = sketch12
pad12.Length = 35
body25 = doc.addObject("PartDesign::Body", "Body024")

sketch13 = body25.newObject("Sketcher::SketchObject", "Sketch012")
sketch13.AttachmentSupport = (doc.getObject("XY_Plane024"), [""])
sketch13.MapMode = "FlatFace"
sketch13.AttachmentOffset = App.Placement(Vector(0, 0, -32.6), App.Rotation())
add_polygon(sketch13, [(11, 120.5), (11, 60.5), (59, 60.5), (59, 120.5)])
sketch13.addConstraint([
    Sketcher.Constraint("Vertical", 0),
    Sketcher.Constraint("Horizontal", 1),
    Sketcher.Constraint("Vertical", 2),
    Sketcher.Constraint("Horizontal", 3),
    Sketcher.Constraint("DistanceX", 1, 1, 1, 2, Q("48 mm")),
    Sketcher.Constraint("DistanceY", 0, 2, 0, 1, Q("60 mm")),
    Sketcher.Constraint("DistanceX", -1, 1, 0, 2, Q("11 mm")),
    Sketcher.Constraint("DistanceY", -1, 1, 0, 2, Q("60.5 mm")),
])
pad13 = body25.newObject("PartDesign::Pad", "Pad012")
pad13.Profile = sketch13
pad13.Length = 35
doc.recompute()

boolean21 = body25.newObject("PartDesign::Boolean", "Boolean020")
boolean21.Type = "Fuse"
boolean21.addObjects([body23])
doc.recompute()

boolean22 = body25.newObject("PartDesign::Boolean", "Boolean021")
boolean22.Type = "Fuse"
boolean22.addObjects([body24])
body26 = doc.addObject("PartDesign::Body", "Body025")

sketch14 = body26.newObject("Sketcher::SketchObject", "Sketch013")
sketch14.AttachmentSupport = (doc.getObject("XY_Plane025"), [""])
sketch14.MapMode = "FlatFace"
sketch14.addGeometry([
    Part.LineSegment(Vector(-2.5, 14.2, 0), Vector(-2.5, -4.099997, 0)),
    Part.ArcOfCircle(Part.Circle(Vector(6.5, -4.099997, 0), Vector(0, 0, 1), 9), math.radians(-179.999999), math.radians(-90.000001)),
    Part.LineSegment(Vector(6.5, -13.099997, 0), Vector(61.498163, -13.099997, 0)),
    Part.ArcOfCircle(Part.Circle(Vector(61.498163, -4.09816, 0), Vector(0, 0, 1), 9.001837), math.radians(-90), math.radians(0)),
    Part.LineSegment(Vector(70.5, -4.09816, 0), Vector(70.5, 14.2, 0)),
    Part.ArcOfCircle(Part.Circle(Vector(61.5, 14.2, 0), Vector(0, 0, 1), 9), math.radians(0.000001), math.radians(89.999999)),
    Part.LineSegment(Vector(61.5, 23.2, 0), Vector(6.5, 23.2, 0)),
    Part.ArcOfCircle(Part.Circle(Vector(6.5, 14.2, 0), Vector(0, 0, 1), 9), math.radians(90.000001), math.radians(179.999999)),
    Part.LineSegment(Vector(-1, 1.200003, 0), Vector(1.6, 1.200003, 0)),
    Part.LineSegment(Vector(1.6, 1.200003, 0), Vector(3.5, 7.47071, 0)),
    Part.LineSegment(Vector(3.5, 7.47071, 0), Vector(3.5, 10.97071, 0)),
    Part.LineSegment(Vector(3.5, 10.97071, 0), Vector(14.2, 10.97071, 0)),
    Part.LineSegment(Vector(14.2, 10.97071, 0), Vector(17.6, 7, 0)),
    Part.LineSegment(Vector(17.6, 7, 0), Vector(50.4, 7, 0)),
    Part.LineSegment(Vector(50.4, 7, 0), Vector(54.2, 10.90184, 0)),
    Part.LineSegment(Vector(54.2, 10.90184, 0), Vector(64.3846, 10.90184, 0)),
    Part.LineSegment(Vector(64.3846, 10.90184, 0), Vector(64.3846, 5.40184, 0)),
    Part.LineSegment(Vector(64.3846, 5.40184, 0), Vector(66.401823, 5.40184, 0)),
    Part.LineSegment(Vector(66.401823, 5.40184, 0), Vector(66.401823, 1.20184, 0)),
    Part.LineSegment(Vector(66.401823, 1.20184, 0), Vector(69, 1.20184, 0)),
    Part.LineSegment(Vector(69, 1.20184, 0), Vector(69, -0.09816, 0)),
    Part.LineSegment(Vector(69, -0.09816, 0), Vector(66.401823, -0.09816, 0)),
    Part.LineSegment(Vector(66.401823, -0.09816, 0), Vector(66.401823, -6.09816, 0)),
    Part.ArcOfCircle(Part.Circle(Vector(61.399986, -6.09816, 0), Vector(0, 0, 1), 5.001837), math.radians(-90.000005), math.radians(0.000005)),
    Part.LineSegment(Vector(61.399986, -11.099997, 0), Vector(6.6, -11.099997, 0)),
    Part.ArcOfCircle(Part.Circle(Vector(6.6, -6.099997, 0), Vector(0, 0, 1), 5), math.radians(179.999996), math.radians(270.000004)),
    Part.LineSegment(Vector(1.6, -6.099997, 0), Vector(1.6, -0.099997, 0)),
    Part.LineSegment(Vector(1.6, -0.099997, 0), Vector(-1, -0.099997, 0)),
    Part.LineSegment(Vector(-1, -0.099997, 0), Vector(-1, 1.200003, 0)),
], False)
sketch14.addConstraint([
    Sketcher.Constraint("Tangent", 0, 2, 1, 1),
    Sketcher.Constraint("Tangent", 1, 2, 2, 1),
    Sketcher.Constraint("Tangent", 2, 2, 3, 1),
    Sketcher.Constraint("Tangent", 3, 2, 4, 1),
    Sketcher.Constraint("Tangent", 4, 2, 5, 1),
    Sketcher.Constraint("Tangent", 5, 2, 6, 1),
    Sketcher.Constraint("Tangent", 6, 2, 7, 1),
    Sketcher.Constraint("Tangent", 7, 2, 0, 1),
    Sketcher.Constraint("Coincident", 8, 2, 9, 1),
    Sketcher.Constraint("Coincident", 9, 2, 10, 1),
    Sketcher.Constraint("Coincident", 10, 2, 11, 1),
    Sketcher.Constraint("Coincident", 11, 2, 12, 1),
    Sketcher.Constraint("Coincident", 12, 2, 13, 1),
    Sketcher.Constraint("Coincident", 13, 2, 14, 1),
    Sketcher.Constraint("Coincident", 14, 2, 15, 1),
    Sketcher.Constraint("Coincident", 15, 2, 16, 1),
    Sketcher.Constraint("Coincident", 16, 2, 17, 1),
    Sketcher.Constraint("Coincident", 17, 2, 18, 1),
    Sketcher.Constraint("Coincident", 18, 2, 19, 1),
    Sketcher.Constraint("Coincident", 19, 2, 20, 1),
    Sketcher.Constraint("Coincident", 20, 2, 21, 1),
    Sketcher.Constraint("Coincident", 21, 2, 22, 1),
    Sketcher.Constraint("Tangent", 22, 2, 23, 2),
    Sketcher.Constraint("Tangent", 23, 1, 24, 1),
    Sketcher.Constraint("Tangent", 24, 2, 25, 2),
    Sketcher.Constraint("Tangent", 25, 1, 26, 1),
    Sketcher.Constraint("Coincident", 26, 2, 27, 1),
    Sketcher.Constraint("Coincident", 27, 2, 28, 1),
    Sketcher.Constraint("Coincident", 28, 2, 8, 1),
    Sketcher.Constraint("Vertical", 0),
    Sketcher.Constraint("Horizontal", 2),
    Sketcher.Constraint("Vertical", 4),
    Sketcher.Constraint("Horizontal", 6),
    Sketcher.Constraint("Horizontal", 8),
    Sketcher.Constraint("Vertical", 10),
    Sketcher.Constraint("Horizontal", 11),
    Sketcher.Constraint("Horizontal", 13),
    Sketcher.Constraint("Horizontal", 15),
    Sketcher.Constraint("Vertical", 16),
    Sketcher.Constraint("Horizontal", 17),
    Sketcher.Constraint("Vertical", 18),
    Sketcher.Constraint("Horizontal", 19),
    Sketcher.Constraint("Vertical", 20),
    Sketcher.Constraint("Horizontal", 21),
    Sketcher.Constraint("Vertical", 22),
    Sketcher.Constraint("Horizontal", 24),
    Sketcher.Constraint("Vertical", 26),
    Sketcher.Constraint("Horizontal", 27),
    Sketcher.Constraint("Vertical", 28),
    Sketcher.Constraint("Equal", 1, 5),
    Sketcher.Constraint("Equal", 5, 7),
    Sketcher.Constraint("Vertical", 18, 2, 21, 2),
    Sketcher.Constraint("Vertical", 8, 2, 25, 1),
    Sketcher.Constraint("Equal", 22, 26),
    Sketcher.Constraint("Equal", 20, 28),
    Sketcher.Constraint("Radius", 1, Q("9 mm")),
    Sketcher.Constraint("Radius", 25, Q("5 mm")),
    Sketcher.Constraint("DistanceX", 6, 2, 6, 1, Q("55 mm")),
    Sketcher.Constraint("DistanceY", 22, 2, 22, 1, Q("6 mm")),
    Sketcher.Constraint("DistanceX", 8, 1, 8, 2, Q("2.6 mm")),
    Sketcher.Constraint("DistanceX", 11, 1, 11, 2, Q("10.7 mm")),
    Sketcher.Constraint("DistanceX", 13, 1, 13, 2, Q("32.8 mm")),
    Sketcher.Constraint("DistanceY", 10, 1, 10, 2, Q("3.5 mm")),
    Sketcher.Constraint("DistanceY", 16, 2, 16, 1, Q("5.5 mm")),
    Sketcher.Constraint("DistanceY", 18, 2, 18, 1, Q("4.2 mm")),
    Sketcher.Constraint("DistanceY", 20, 2, 20, 1, Q("1.3 mm")),
    Sketcher.Constraint("DistanceY", -1, 1, 12, 2, Q("7 mm")),
    Sketcher.Constraint("DistanceX", -1, 1, 19, 2, Q("69 mm")),
    Sketcher.Constraint("DistanceX", 27, 2, -1, 1, Q("1 mm")),
    Sketcher.Constraint("DistanceY", 23, 3, 3, 3, Q("2 mm")),
    Sketcher.Constraint("DistanceY", 25, 3, 1, 3, Q("2 mm")),
    Sketcher.Constraint("DistanceX", 9, 2, 7, 3, Q("3 mm")),
    Sketcher.Constraint("DistanceX", -1, 1, 1, 3, Q("6.5 mm")),
    Sketcher.Constraint("DistanceY", -1, 1, 5, 3, Q("14.2 mm")),
    Sketcher.Constraint("DistanceX", -1, 1, 12, 2, Q("17.6 mm")),
    Sketcher.Constraint("DistanceX", -1, 1, 14, 2, Q("54.2 mm")),
    Sketcher.Constraint("DistanceX", 15, 1, 15, 2, Q("10.1846 mm")),
    Sketcher.Constraint("Radius", 3, Q("9.001837 mm")),
    Sketcher.Constraint("Distance", 14, Q("5.446499 mm")),
    Sketcher.Constraint("Distance", 12, Q("5.227479 mm")),
    Sketcher.Constraint("DistanceX", 17, 1, 17, 2, Q("2.017223 mm")),
])
pad14 = body26.newObject("PartDesign::Pad", "Pad013")
pad14.Profile = sketch14
pad14.Length = 2
pad14.Reversed = True
body27 = doc.addObject("PartDesign::Body", "Body026")
doc.recompute()

body26.Placement = App.Placement(Vector(0, 0, 0), App.Rotation(Vector(1, 0, 0), 90))
boolean23 = body27.newObject("PartDesign::Boolean", "Boolean022")
boolean23.Type = "Fuse"
boolean23.addObjects([body26])
body28 = doc.addObject("PartDesign::Body", "Body027")
doc.recompute()

body27.Placement = App.Placement(Vector(0, 84, 0), App.Rotation(Vector(0, 0, 1), 0))
boolean24 = body28.newObject("PartDesign::Boolean", "Boolean023")
boolean24.Type = "Fuse"
boolean24.addObjects([body27])
body29 = doc.addObject("PartDesign::Body", "Body028")
doc.recompute()

body28.Placement = App.Placement(Vector(0, 24, 0), App.Rotation(Vector(0, 0, 1), 0))
boolean25 = body29.newObject("PartDesign::Boolean", "Boolean024")
boolean25.Type = "Fuse"
boolean25.addObjects([body28])
doc.recompute()

boolean26 = body29.newObject("PartDesign::Boolean", "Boolean025")
boolean26.Type = "Cut"
boolean26.addObjects([body25])
doc.recompute()

boolean27 = body29.newObject("PartDesign::Boolean", "Boolean026")
boolean27.Type = "Fuse"
boolean27.addObjects([body22])
doc.recompute()

boolean28 = body29.newObject("PartDesign::Boolean", "Boolean027")
boolean28.Type = "Cut"
boolean28.addObjects([body])

doc.recompute()
